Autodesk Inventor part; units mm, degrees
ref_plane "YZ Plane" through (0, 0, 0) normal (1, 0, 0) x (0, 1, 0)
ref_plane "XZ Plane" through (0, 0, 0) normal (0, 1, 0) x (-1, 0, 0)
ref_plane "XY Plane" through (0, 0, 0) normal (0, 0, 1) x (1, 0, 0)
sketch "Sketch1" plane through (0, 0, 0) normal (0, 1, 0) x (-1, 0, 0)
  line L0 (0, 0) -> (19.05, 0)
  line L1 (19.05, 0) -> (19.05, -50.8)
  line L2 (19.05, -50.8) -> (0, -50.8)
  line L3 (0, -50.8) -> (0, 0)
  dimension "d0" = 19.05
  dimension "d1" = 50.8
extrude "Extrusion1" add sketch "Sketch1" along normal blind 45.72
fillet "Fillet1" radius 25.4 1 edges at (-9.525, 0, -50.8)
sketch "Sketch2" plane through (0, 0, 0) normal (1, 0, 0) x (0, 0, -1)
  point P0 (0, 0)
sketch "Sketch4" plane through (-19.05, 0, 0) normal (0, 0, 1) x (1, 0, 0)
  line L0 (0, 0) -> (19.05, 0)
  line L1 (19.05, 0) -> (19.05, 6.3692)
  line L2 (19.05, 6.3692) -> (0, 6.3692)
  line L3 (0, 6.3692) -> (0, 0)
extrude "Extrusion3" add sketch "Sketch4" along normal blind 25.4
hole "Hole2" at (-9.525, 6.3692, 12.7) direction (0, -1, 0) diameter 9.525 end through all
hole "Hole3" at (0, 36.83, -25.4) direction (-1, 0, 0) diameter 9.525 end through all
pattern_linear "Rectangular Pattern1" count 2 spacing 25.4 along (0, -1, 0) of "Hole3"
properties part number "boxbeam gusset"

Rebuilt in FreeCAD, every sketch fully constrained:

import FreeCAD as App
import Part
import Sketcher
Q = App.Units.Quantity


def edges_at(feature, points):
    """Names of the edges that pass closest to the given points."""
    edges = feature.Shape.Edges
    near = lambda p: min(range(len(edges)), key=lambda i: edges[i].distToShape(Part.Vertex(*p))[0])
    return sorted({f"Edge{near(p) + 1}" for p in points})

doc = App.newDocument("Part")
body = doc.addObject("PartDesign::Body", "Body")

# Sketch on XZ plane
sketch1 = body.newObject("Sketcher::SketchObject", "Sketch")
sketch1.AttachmentSupport = (doc.getObject("XZ_Plane"), [""])
sketch1.MapMode = "FlatFace"
sketch1.addGeometry([
    Part.LineSegment(App.Vector(-19.05, 0, 0), App.Vector(0, 0, 0)),
    Part.LineSegment(App.Vector(0, 0, 0), App.Vector(0, -50.8, 0)),
    Part.LineSegment(App.Vector(0, -50.8, 0), App.Vector(-19.05, -50.8, 0)),
    Part.LineSegment(App.Vector(-19.05, -50.8, 0), App.Vector(-19.05, 0, 0)),
], False)
sketch1.addConstraint([
    Sketcher.Constraint("Coincident", 0, 2, 1, 1),
    Sketcher.Constraint("Coincident", 1, 2, 2, 1),
    Sketcher.Constraint("Coincident", 2, 2, 3, 1),
    Sketcher.Constraint("Coincident", 3, 2, 0, 1),
    Sketcher.Constraint("Horizontal", 0),
    Sketcher.Constraint("Vertical", 1),
    Sketcher.Constraint("Horizontal", 2),
    Sketcher.Constraint("Vertical", 3),
    Sketcher.Constraint("Coincident", 0, 2, -1, 1),
    Sketcher.Constraint("DistanceY", 1, 2, 1, 1, Q("2 in")),
    Sketcher.Constraint("DistanceX", 0, 1, 0, 2, Q("0.75 in")),
])
pad1 = body.newObject("PartDesign::Pad", "Pad")
pad1.Profile = sketch1
pad1.Length = Q("1.8 in")
pad1.Reversed = True
doc.recompute()

fillet = body.newObject("PartDesign::Fillet", "Fillet")
fillet.Base = (pad1, edges_at(pad1, [(-9.525, 0, -50.8)]))
fillet.Radius = Q("1 in")

# Sketch on XY plane
sketch2 = body.newObject("Sketcher::SketchObject", "Sketch001")
sketch2.AttachmentSupport = (doc.getObject("XY_Plane"), [""])
sketch2.MapMode = "FlatFace"
sketch2.addGeometry([
    Part.LineSegment(App.Vector(-19.05, 6.3692, 0), App.Vector(-19.05, 0, 0)),
    Part.LineSegment(App.Vector(-19.05, 0, 0), App.Vector(0, 0, 0)),
    Part.LineSegment(App.Vector(0, 0, 0), App.Vector(0, 6.3692, 0)),
    Part.LineSegment(App.Vector(0, 6.3692, 0), App.Vector(-19.05, 6.3692, 0)),
], False)
sketch2.addConstraint([
    Sketcher.Constraint("Coincident", 0, 2, 1, 1),
    Sketcher.Constraint("Coincident", 1, 2, 2, 1),
    Sketcher.Constraint("Coincident", 2, 2, 3, 1),
    Sketcher.Constraint("Coincident", 3, 2, 0, 1),
    Sketcher.Constraint("Vertical", 0),
    Sketcher.Constraint("Horizontal", 1),
    Sketcher.Constraint("Vertical", 2),
    Sketcher.Constraint("Horizontal", 3),
    Sketcher.Constraint("Coincident", 1, 2, -1, 1),
    Sketcher.Constraint("DistanceX", 1, 1, 1, 2, Q("0.75 in")),
    Sketcher.Constraint("DistanceY", 0, 2, 0, 1, 6.3692),
])
pad2 = body.newObject("PartDesign::Pad", "Pad001")
pad2.Profile = sketch2
pad2.Length = Q("1 in")

# Sketch on XZ plane
sketch3 = body.newObject("Sketcher::SketchObject", "Sketch002")
sketch3.AttachmentSupport = (doc.getObject("XZ_Plane"), [""])
sketch3.MapMode = "FlatFace"
sketch3.AttachmentOffset = App.Placement(App.Vector(0, 0, -6.3692), App.Rotation())
sketch3.addGeometry(Part.Circle(App.Vector(-9.525, 12.7, 0), App.Vector(0, 0, 1), 4.7625), False)
sketch3.addConstraint([
    Sketcher.Constraint("Diameter", 0, Q("0.375 in")),
    Sketcher.Constraint("DistanceY", -1, 1, 0, 3, Q("0.5 in")),
    Sketcher.Constraint("DistanceX", 0, 3, -1, 1, Q("0.375 in")),
])
doc.recompute()
hole = body.newObject("PartDesign::Hole", "Hole")
hole.Profile = sketch3
hole.ThreadType = "None"
hole.Diameter = Q("0.375 in")
hole.DepthType = "ThroughAll"
hole.Reversed = True

# Sketch on YZ plane
sketch4 = body.newObject("Sketcher::SketchObject", "Sketch003")
sketch4.AttachmentSupport = (doc.getObject("YZ_Plane"), [""])
sketch4.MapMode = "FlatFace"
sketch4.addGeometry(Part.Circle(App.Vector(36.83, -25.4, 0), App.Vector(0, 0, 1), 4.7625), False)
sketch4.addConstraint([
    Sketcher.Constraint("Diameter", 0, Q("0.375 in")),
    Sketcher.Constraint("DistanceY", 0, 3, -1, 1, Q("1 in")),
    Sketcher.Constraint("DistanceX", -1, 1, 0, 3, Q("1.45 in")),
])
doc.recompute()
hole2 = body.newObject("PartDesign::Hole", "Hole001")
hole2.Profile = sketch4
hole2.ThreadType = "None"
hole2.Diameter = Q("0.375 in")
hole2.DepthType = "ThroughAll"
doc.recompute()

linearpattern = body.newObject("PartDesign::LinearPattern", "LinearPattern")
linearpattern.Originals = [hole2]
linearpattern.Direction = (doc.getObject("Y_Axis"), [""])
linearpattern.Mode = "offset"
linearpattern.Offset = Q("1 in")
linearpattern.Occurrences = 2
linearpattern.Reversed = True
body.Tip = linearpattern

doc.recompute()
